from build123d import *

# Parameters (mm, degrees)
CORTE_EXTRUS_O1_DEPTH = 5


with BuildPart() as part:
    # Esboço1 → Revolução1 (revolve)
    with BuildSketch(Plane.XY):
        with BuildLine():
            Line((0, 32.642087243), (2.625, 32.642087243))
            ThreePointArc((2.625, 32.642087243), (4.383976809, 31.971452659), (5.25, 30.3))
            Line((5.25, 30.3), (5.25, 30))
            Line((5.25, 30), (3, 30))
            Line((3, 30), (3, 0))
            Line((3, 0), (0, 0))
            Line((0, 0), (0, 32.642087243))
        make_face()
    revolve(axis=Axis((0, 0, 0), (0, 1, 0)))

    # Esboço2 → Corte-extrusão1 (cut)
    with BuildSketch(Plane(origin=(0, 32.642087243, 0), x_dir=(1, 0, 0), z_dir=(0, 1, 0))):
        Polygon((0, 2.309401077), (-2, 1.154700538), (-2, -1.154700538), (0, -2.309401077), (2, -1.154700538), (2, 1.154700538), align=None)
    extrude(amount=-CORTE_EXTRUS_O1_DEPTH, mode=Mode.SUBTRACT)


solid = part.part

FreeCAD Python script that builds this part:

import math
import FreeCAD as App
import Part
import Sketcher

V = App.Vector
Q = App.Units.Quantity

doc = App.newDocument("Part")
body = doc.addObject("PartDesign::Body", "Body")

sketch1 = doc.addObject("Sketcher::SketchObject", "Sketch")
body.addObject(sketch1)
sketch1.AttachmentSupport = (doc.XY_Plane, [""])
sketch1.MapMode = "FlatFace"
sketch1.addGeometry([
    Part.LineSegment(V(2.62, 32.64, 0), V(0, 32.64, 0)),
    Part.LineSegment(V(0, 32.64, 0), V(0, 0, 0)),
    Part.LineSegment(V(0, 0, 0), V(3, 0, 0)),
    Part.LineSegment(V(3, 0, 0), V(3, 30, 0)),
    Part.LineSegment(V(3, 30, 0), V(5.25, 30, 0)),
    Part.LineSegment(V(5.25, 30, 0), V(5.25, 30.3, 0)),
    Part.ArcOfCircle(Part.Circle(V(2.63, 30, 0), V(0, 0, 1), 2.64), math.radians(7), math.radians(90)),
], False)
sketch1.addConstraint([
    Sketcher.Constraint("Coincident", 0, 2, 1, 1),
    Sketcher.Constraint("Coincident", 1, 2, 2, 1),
    Sketcher.Constraint("Coincident", 2, 2, 3, 1),
    Sketcher.Constraint("Coincident", 3, 2, 4, 1),
    Sketcher.Constraint("Coincident", 4, 2, 5, 1),
    Sketcher.Constraint("Coincident", 5, 2, 6, 1),
    Sketcher.Constraint("Tangent", 6, 2, 0, 1),
    Sketcher.Constraint("Horizontal", 0),
    Sketcher.Constraint("Vertical", 1),
    Sketcher.Constraint("Horizontal", 2),
    Sketcher.Constraint("Vertical", 3),
    Sketcher.Constraint("Horizontal", 4),
    Sketcher.Constraint("Vertical", 5),
    Sketcher.Constraint("Coincident", 1, 2, -1, 1),
    Sketcher.Constraint("Horizontal", 6, 3, 3, 2),
    Sketcher.Constraint("DistanceX", 2, 1, 2, 2, Q("3 mm")),
    Sketcher.Constraint("DistanceY", 3, 1, 3, 2, Q("30 mm")),
    Sketcher.Constraint("DistanceY", 5, 1, 5, 2, Q("0.3 mm")),
    Sketcher.Constraint("DistanceX", 4, 1, 4, 2, Q("2.25 mm")),
    Sketcher.Constraint("DistanceX", 0, 2, 0, 1, Q("2.625 mm")),
])
revolution = doc.addObject("PartDesign::Revolution", "Revolution")
body.addObject(revolution)
revolution.Profile = sketch1
revolution.ReferenceAxis = (sketch1, ["V_Axis"])
revolution.Angle = 360

sketch2 = doc.addObject("Sketcher::SketchObject", "Sketch001")
body.addObject(sketch2)
sketch2.AttachmentSupport = (doc.XZ_Plane, [""])
sketch2.MapMode = "FlatFace"
sketch2.AttachmentOffset = App.Placement(V(0, 0, -32.642087), App.Rotation())
sketch2.addGeometry([
    Part.LineSegment(V(0, -2.3, 0), V(-2, -1.2, 0)),
    Part.LineSegment(V(-2, -1.2, 0), V(-2, 1.2, 0)),
    Part.LineSegment(V(-2, 1.2, 0), V(0, 2.3, 0)),
    Part.LineSegment(V(0, 2.3, 0), V(2, 1.2, 0)),
    Part.LineSegment(V(2, 1.2, 0), V(2, -1.2, 0)),
    Part.LineSegment(V(2, -1.2, 0), V(0, -2.3, 0)),
], False)
sketch2.addConstraint([
    Sketcher.Constraint("Coincident", 0, 2, 1, 1),
    Sketcher.Constraint("Coincident", 1, 2, 2, 1),
    Sketcher.Constraint("Coincident", 2, 2, 3, 1),
    Sketcher.Constraint("Coincident", 3, 2, 4, 1),
    Sketcher.Constraint("Coincident", 4, 2, 5, 1),
    Sketcher.Constraint("Coincident", 5, 2, 0, 1),
    Sketcher.Constraint("Vertical", 1),
    Sketcher.Constraint("Vertical", 4),
    Sketcher.Constraint("Symmetric", 0, 2, 3, 2, -1, 1),
    Sketcher.Constraint("Symmetric", 2, 2, 5, 2, -1, 1),
    Sketcher.Constraint("PointOnObject", 2, 2, -2),
    Sketcher.Constraint("Parallel", 2, 5),
    Sketcher.Constraint("Horizontal", 1, 2, 3, 2),
    Sketcher.Constraint("Angle", 0, Q("150 deg")),
    Sketcher.Constraint("DistanceX", 0, 2, -1, 1, Q("2 mm")),
    Sketcher.Constraint("DistanceY", 1, 1, 1, 2, Q("2.309401 mm")),
])
pocket1 = doc.addObject("PartDesign::Pocket", "Pocket")
body.addObject(pocket1)
pocket1.Profile = sketch2
pocket1.Length = 5
pocket1.Reversed = True

doc.recompute()
